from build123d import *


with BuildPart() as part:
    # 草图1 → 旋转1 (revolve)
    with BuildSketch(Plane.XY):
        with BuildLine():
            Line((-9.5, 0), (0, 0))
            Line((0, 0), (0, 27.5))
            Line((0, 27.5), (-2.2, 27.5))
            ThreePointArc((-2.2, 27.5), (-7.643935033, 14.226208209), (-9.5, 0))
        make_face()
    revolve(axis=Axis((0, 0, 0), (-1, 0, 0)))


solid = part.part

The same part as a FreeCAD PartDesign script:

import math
import FreeCAD as App
import Part
import Sketcher

V = App.Vector

doc = App.newDocument("Part")
body = doc.addObject("PartDesign::Body", "Body")

sketch1 = body.newObject("Sketcher::SketchObject", "Sketch")
sketch1.AttachmentSupport = (doc.getObject("XY_Plane"), [""])
sketch1.MapMode = "FlatFace"
sketch1.addGeometry([
    Part.LineSegment(V(-9.5, 0, 0), V(0, 0, 0)),
    Part.LineSegment(V(0, 0, 0), V(0, 27.5, 0)),
    Part.LineSegment(V(0, 27.5, 0), V(-2.2, 27.5, 0)),
    Part.ArcOfCircle(Part.Circle(V(45.947945, 0, 0), V(0, 0, 1), 55.447945), math.radians(150.266882), math.radians(180)),
], False)
sketch1.addConstraint([
    Sketcher.Constraint("Coincident", 0, 2, 1, 1),
    Sketcher.Constraint("Coincident", 1, 2, 2, 1),
    Sketcher.Constraint("Coincident", 2, 2, 3, 1),
    Sketcher.Constraint("Coincident", 3, 2, 0, 1),
    Sketcher.Constraint("Horizontal", 0),
    Sketcher.Constraint("Vertical", 1),
    Sketcher.Constraint("Horizontal", 2),
    Sketcher.Constraint("Coincident", 0, 2, -1, 1),
    Sketcher.Constraint("PointOnObject", 3, 3, -1),
    Sketcher.Constraint("DistanceX", 0, 1, 0, 2, 9.5),
    Sketcher.Constraint("DistanceX", 2, 2, 2, 1, 2.2),
    Sketcher.Constraint("DistanceY", 1, 1, 1, 2, 27.5),
])
revolution = body.newObject("PartDesign::Revolution", "Revolution")
revolution.Profile = sketch1
revolution.ReferenceAxis = (sketch1, ["H_Axis"])
revolution.Angle = 360

doc.recompute()
